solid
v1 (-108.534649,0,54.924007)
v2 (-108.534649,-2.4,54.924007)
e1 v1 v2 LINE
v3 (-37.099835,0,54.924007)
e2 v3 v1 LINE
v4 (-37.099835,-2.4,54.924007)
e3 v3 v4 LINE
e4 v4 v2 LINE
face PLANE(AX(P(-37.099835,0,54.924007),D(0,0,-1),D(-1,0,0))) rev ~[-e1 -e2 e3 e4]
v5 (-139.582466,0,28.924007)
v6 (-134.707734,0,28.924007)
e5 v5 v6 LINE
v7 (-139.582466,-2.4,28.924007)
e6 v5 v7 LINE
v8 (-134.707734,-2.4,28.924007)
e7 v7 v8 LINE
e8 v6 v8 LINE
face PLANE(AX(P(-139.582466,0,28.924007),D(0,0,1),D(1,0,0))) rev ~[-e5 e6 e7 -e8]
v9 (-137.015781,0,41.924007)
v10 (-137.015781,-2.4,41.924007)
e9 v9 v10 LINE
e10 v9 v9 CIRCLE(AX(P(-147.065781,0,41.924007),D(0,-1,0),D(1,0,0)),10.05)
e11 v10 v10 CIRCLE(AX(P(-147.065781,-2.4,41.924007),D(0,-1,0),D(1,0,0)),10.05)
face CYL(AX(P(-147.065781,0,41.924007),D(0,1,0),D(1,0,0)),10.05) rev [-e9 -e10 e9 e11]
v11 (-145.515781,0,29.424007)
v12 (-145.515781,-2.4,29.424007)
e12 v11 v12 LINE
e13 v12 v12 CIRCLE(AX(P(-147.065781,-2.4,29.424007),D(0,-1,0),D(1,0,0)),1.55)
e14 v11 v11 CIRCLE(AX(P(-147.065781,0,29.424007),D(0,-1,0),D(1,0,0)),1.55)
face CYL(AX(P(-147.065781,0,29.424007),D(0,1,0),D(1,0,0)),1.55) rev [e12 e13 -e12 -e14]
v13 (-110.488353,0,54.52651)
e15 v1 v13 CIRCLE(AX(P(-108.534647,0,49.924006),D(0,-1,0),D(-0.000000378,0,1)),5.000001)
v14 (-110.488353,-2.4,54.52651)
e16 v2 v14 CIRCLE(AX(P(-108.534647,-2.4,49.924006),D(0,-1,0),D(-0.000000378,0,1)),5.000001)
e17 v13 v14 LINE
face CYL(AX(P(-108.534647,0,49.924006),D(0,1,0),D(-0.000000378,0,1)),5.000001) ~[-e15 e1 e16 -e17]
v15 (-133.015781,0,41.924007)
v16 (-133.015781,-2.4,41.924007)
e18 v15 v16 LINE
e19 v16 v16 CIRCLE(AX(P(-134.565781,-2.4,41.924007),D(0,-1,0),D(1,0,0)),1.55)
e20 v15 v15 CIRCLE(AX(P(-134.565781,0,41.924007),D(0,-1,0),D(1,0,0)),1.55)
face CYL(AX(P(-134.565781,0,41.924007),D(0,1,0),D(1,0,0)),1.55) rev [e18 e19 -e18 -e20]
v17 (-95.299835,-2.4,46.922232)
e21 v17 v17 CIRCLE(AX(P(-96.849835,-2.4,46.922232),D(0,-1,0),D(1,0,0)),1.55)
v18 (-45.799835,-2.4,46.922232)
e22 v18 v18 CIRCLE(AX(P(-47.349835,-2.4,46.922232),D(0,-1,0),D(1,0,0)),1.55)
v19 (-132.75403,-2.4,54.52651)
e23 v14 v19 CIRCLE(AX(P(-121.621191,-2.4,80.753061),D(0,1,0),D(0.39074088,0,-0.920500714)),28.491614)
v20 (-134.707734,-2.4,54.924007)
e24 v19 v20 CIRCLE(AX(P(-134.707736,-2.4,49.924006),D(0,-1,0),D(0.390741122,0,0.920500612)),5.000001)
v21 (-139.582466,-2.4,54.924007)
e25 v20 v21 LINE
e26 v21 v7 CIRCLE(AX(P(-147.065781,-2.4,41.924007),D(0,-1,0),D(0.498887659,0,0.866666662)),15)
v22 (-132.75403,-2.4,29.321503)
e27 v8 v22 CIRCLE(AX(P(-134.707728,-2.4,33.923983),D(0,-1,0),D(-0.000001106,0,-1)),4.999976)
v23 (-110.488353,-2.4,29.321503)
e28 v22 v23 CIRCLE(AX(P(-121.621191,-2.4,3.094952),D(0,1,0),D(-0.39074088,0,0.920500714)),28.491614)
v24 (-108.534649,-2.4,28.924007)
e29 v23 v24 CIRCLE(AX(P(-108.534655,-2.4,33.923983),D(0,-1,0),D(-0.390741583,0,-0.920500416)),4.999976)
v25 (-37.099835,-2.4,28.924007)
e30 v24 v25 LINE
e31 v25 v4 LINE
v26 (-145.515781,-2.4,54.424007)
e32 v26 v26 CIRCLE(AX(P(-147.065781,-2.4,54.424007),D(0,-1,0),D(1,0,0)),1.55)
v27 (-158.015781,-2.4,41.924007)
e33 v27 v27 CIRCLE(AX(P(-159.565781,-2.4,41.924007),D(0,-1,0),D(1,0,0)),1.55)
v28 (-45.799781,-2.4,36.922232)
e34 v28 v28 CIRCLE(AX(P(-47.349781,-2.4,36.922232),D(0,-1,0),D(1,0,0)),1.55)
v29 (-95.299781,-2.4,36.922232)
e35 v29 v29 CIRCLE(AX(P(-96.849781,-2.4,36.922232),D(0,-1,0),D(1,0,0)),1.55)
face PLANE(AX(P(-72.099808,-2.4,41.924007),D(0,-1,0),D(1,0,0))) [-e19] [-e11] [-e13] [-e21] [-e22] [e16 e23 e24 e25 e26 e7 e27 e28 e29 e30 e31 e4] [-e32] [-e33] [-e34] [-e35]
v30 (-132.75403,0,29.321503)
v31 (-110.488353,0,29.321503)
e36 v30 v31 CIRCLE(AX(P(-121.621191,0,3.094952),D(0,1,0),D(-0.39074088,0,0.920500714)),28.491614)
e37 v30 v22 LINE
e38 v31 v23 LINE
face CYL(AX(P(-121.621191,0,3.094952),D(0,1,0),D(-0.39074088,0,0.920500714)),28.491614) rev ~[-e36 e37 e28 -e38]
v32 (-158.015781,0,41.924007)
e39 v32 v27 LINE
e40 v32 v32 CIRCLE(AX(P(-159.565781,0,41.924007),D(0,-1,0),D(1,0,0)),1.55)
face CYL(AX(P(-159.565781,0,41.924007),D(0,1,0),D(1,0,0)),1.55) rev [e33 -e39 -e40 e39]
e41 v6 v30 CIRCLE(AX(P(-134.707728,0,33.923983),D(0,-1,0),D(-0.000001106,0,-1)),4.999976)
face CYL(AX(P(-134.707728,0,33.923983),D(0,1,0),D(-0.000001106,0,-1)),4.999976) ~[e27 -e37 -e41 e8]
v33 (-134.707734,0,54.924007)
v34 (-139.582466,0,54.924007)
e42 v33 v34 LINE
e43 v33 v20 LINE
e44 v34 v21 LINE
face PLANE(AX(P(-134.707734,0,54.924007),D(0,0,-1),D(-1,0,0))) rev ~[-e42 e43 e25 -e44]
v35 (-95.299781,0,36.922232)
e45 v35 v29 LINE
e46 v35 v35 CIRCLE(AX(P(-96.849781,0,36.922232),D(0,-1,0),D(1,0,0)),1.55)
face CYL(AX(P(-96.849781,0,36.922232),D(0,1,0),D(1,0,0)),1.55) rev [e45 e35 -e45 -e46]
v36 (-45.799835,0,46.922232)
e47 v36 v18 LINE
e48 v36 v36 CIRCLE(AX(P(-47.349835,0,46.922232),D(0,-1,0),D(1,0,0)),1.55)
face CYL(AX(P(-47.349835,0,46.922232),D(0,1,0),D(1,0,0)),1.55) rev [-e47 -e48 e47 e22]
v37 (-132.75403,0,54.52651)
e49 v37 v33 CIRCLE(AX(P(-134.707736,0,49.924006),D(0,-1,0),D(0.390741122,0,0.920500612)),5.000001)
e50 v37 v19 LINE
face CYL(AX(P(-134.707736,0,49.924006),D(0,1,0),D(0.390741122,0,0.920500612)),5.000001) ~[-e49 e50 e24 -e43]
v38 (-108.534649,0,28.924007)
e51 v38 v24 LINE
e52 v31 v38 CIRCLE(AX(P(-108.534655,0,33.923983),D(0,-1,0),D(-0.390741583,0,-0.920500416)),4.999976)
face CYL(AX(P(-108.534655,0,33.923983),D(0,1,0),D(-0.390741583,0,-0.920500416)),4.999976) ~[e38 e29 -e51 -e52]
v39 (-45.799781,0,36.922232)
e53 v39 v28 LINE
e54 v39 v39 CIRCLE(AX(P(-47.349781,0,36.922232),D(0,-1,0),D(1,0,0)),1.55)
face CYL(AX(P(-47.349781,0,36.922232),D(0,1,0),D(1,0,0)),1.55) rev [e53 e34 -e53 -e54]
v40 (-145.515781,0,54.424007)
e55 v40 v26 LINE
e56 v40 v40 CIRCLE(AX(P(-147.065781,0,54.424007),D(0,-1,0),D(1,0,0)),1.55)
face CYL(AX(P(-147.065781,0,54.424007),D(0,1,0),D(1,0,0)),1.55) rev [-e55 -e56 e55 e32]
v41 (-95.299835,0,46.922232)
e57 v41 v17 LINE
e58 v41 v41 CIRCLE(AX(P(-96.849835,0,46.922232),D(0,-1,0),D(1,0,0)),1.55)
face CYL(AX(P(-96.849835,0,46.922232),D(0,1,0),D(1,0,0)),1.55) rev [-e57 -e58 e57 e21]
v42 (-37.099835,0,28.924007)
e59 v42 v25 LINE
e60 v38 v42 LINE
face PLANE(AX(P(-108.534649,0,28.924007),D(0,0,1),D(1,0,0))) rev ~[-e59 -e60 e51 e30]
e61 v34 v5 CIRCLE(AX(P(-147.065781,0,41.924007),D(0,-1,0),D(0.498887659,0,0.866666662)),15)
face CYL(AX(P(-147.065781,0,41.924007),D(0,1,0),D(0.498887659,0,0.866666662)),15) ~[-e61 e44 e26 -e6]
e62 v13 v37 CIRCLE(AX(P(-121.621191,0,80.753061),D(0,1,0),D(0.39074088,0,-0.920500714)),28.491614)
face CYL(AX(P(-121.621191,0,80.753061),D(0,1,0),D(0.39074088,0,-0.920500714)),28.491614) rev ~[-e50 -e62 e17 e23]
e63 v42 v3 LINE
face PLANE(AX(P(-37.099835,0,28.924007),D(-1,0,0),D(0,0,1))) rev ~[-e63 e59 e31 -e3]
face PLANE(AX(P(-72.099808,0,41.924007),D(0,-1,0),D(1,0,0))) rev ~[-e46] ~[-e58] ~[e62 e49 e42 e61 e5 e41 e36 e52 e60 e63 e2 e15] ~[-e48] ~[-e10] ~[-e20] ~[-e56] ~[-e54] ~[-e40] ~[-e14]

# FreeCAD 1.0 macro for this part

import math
import FreeCAD as App
import Part
import Sketcher

doc = App.newDocument("Part")
body = doc.addObject("PartDesign::Body", "Body")

# Sketch on XZ plane
sketch1 = body.newObject("Sketcher::SketchObject", "Sketch")
sketch1.AttachmentSupport = (doc.getObject("XZ_Plane"), [""])
sketch1.MapMode = "FlatFace"
sketch1.addGeometry([
    Part.LineSegment(App.Vector(-37.099835, 28.924007, 0), App.Vector(-37.099835, 54.924007, 0)),  # 0
    Part.LineSegment(App.Vector(-37.099835, 54.924007, 0), App.Vector(-108.534649, 54.924007, 0)),  # 1
    Part.ArcOfCircle(Part.Circle(App.Vector(-108.534647, 49.924006, 0), App.Vector(0, 0, 1), 5.000001), math.radians(90.000022), math.radians(113.000622)),  # 2
    Part.ArcOfCircle(Part.Circle(App.Vector(-121.621191, 80.753061, 0), App.Vector(0, 0, 1), 28.491614), math.radians(-113.000607), math.radians(-66.999393)),  # 3
    Part.ArcOfCircle(Part.Circle(App.Vector(-134.707736, 49.924006, 0), App.Vector(0, 0, 1), 5.000001), math.radians(66.999378), math.radians(89.999978)),  # 4
    Part.LineSegment(App.Vector(-134.707734, 54.924007, 0), App.Vector(-139.582466, 54.924007, 0)),  # 5
    Part.ArcOfCircle(Part.Circle(App.Vector(-147.065781, 41.924007, 0), App.Vector(0, 0, 1), 15), math.radians(60.073565), math.radians(299.926435)),  # 6
    Part.LineSegment(App.Vector(-139.582466, 28.924007, 0), App.Vector(-134.707734, 28.924007, 0)),  # 7
    Part.ArcOfCircle(Part.Circle(App.Vector(-134.707728, 33.923983, 0), App.Vector(0, 0, 1), 4.999976), math.radians(-90.000063), math.radians(-66.999349)),  # 8
    Part.ArcOfCircle(Part.Circle(App.Vector(-121.621191, 3.094952, 0), App.Vector(0, 0, 1), 28.491614), math.radians(66.999393), math.radians(113.000607)),  # 9
    Part.ArcOfCircle(Part.Circle(App.Vector(-108.534655, 33.923983, 0), App.Vector(0, 0, 1), 4.999976), math.radians(-113.000651), math.radians(-89.999937)),  # 10
    Part.LineSegment(App.Vector(-108.534649, 28.924007, 0), App.Vector(-37.099835, 28.924007, 0)),  # 11
    Part.Circle(App.Vector(-147.065781, 29.424007, 0), App.Vector(0, 0, 1), 1.55),  # 12
    Part.Circle(App.Vector(-96.849781, 36.922232, 0), App.Vector(0, 0, 1), 1.55),  # 13
    Part.Circle(App.Vector(-47.349781, 36.922232, 0), App.Vector(0, 0, 1), 1.55),  # 14
    Part.Circle(App.Vector(-159.565781, 41.924007, 0), App.Vector(0, 0, 1), 1.55),  # 15
    Part.Circle(App.Vector(-147.065781, 41.924007, 0), App.Vector(0, 0, 1), 10.05),  # 16
    Part.Circle(App.Vector(-134.565781, 41.924007, 0), App.Vector(0, 0, 1), 1.55),  # 17
    Part.Circle(App.Vector(-147.065781, 54.424007, 0), App.Vector(0, 0, 1), 1.55),  # 18
    Part.Circle(App.Vector(-96.849835, 46.922232, 0), App.Vector(0, 0, 1), 1.55),  # 19
    Part.Circle(App.Vector(-47.349835, 46.922232, 0), App.Vector(0, 0, 1), 1.55),  # 20
], False)
sketch1.addConstraint([
    Sketcher.Constraint("Coincident", 0, 2, 1, 1),
    Sketcher.Constraint("Coincident", 1, 2, 2, 1),
    Sketcher.Constraint("Coincident", 2, 2, 3, 2),
    Sketcher.Constraint("Coincident", 3, 1, 4, 1),
    Sketcher.Constraint("Coincident", 4, 2, 5, 1),
    Sketcher.Constraint("Coincident", 5, 2, 6, 1),
    Sketcher.Constraint("Coincident", 6, 2, 7, 1),
    Sketcher.Constraint("Coincident", 7, 2, 8, 1),
    Sketcher.Constraint("Coincident", 8, 2, 9, 2),
    Sketcher.Constraint("Coincident", 9, 1, 10, 1),
    Sketcher.Constraint("Coincident", 10, 2, 11, 1),
    Sketcher.Constraint("Coincident", 11, 2, 0, 1),
    Sketcher.Constraint("Vertical", 0),
    Sketcher.Constraint("Horizontal", 1),
    Sketcher.Constraint("Horizontal", 5),
    Sketcher.Constraint("Horizontal", 7),
    Sketcher.Constraint("Horizontal", 11),
    Sketcher.Constraint("Coincident", 16, 3, 6, 3),
    Sketcher.Constraint("Radius", 2, 5.000001),
    Sketcher.Constraint("Radius", 4, 5.000001),
    Sketcher.Constraint("Radius", 6, 15.0),
    Sketcher.Constraint("Diameter", 12, 3.1),
    Sketcher.Constraint("Diameter", 13, 3.1),
    Sketcher.Constraint("Diameter", 14, 3.1),
    Sketcher.Constraint("Diameter", 15, 3.1),
    Sketcher.Constraint("Diameter", 16, 20.1),
    Sketcher.Constraint("Diameter", 17, 3.1),
    Sketcher.Constraint("Diameter", 18, 3.1),
    Sketcher.Constraint("Diameter", 19, 3.1),
    Sketcher.Constraint("Diameter", 20, 3.1),
    Sketcher.Constraint("DistanceY", 0, 1, 0, 2, 26.0),
    Sketcher.Constraint("DistanceY", 6, 3, 4, 3, 7.999999),
    Sketcher.Constraint("DistanceY", 6, 3, 2, 3, 7.999999),
    Sketcher.Constraint("DistanceY", 15, 3, 4, 3, 7.999999),
    Sketcher.Constraint("DistanceY", 17, 3, 4, 3, 7.999999),
    Sketcher.Constraint("DistanceY", 13, 3, 19, 3, 10.0),
    Sketcher.Constraint("DistanceY", 14, 3, 20, 3, 10.0),
    Sketcher.Constraint("DistanceY", 13, 3, 20, 3, 10.0),
    Sketcher.Constraint("DistanceY", 6, 2, 17, 3, 13.0),
    Sketcher.Constraint("DistanceY", 12, 3, 6, 3, 12.5),
    Sketcher.Constraint("DistanceX", 13, 3, 14, 3, 49.5),
    Sketcher.Constraint("DistanceX", 15, 3, 6, 3, 12.5),
    Sketcher.Constraint("DistanceX", 15, 3, 12, 3, 12.5),
    Sketcher.Constraint("DistanceX", 6, 3, 17, 3, 12.5),
    Sketcher.Constraint("DistanceY", 6, 3, 18, 3, 12.5),
    Sketcher.Constraint("DistanceX", 15, 3, 18, 3, 12.5),
    Sketcher.Constraint("DistanceX", 19, 3, 20, 3, 49.5),
    Sketcher.Constraint("DistanceX", 20, 3, 0, 2, 10.25),
    Sketcher.Constraint("Radius", 3, 28.491614),
    Sketcher.Constraint("Radius", 8, 4.999976),
    Sketcher.Constraint("Radius", 9, 28.491614),
    Sketcher.Constraint("Radius", 10, 4.999976),
    Sketcher.Constraint("DistanceX", 4, 3, 19, 3, 37.857901),
    Sketcher.Constraint("DistanceX", 2, 2, 10, 3, 1.953698),
    Sketcher.Constraint("DistanceX", 8, 3, 8, 2, 1.953698),
    Sketcher.Constraint("DistanceX", 9, 1, 10, 3, 1.953698),
    Sketcher.Constraint("DistanceX", 1, 2, 1, 1, 71.434814),
    Sketcher.Constraint("DistanceX", 5, 2, 5, 1, 4.874732),
    Sketcher.Constraint("DistanceX", 7, 1, 7, 2, 4.874732),
    Sketcher.Constraint("DistanceX", 11, 1, 11, 2, 71.434814),
    Sketcher.Constraint("DistanceX", 3, 3, -1, 1, 121.621191),
    Sketcher.Constraint("DistanceY", -1, 1, 3, 3, 80.753061),
    Sketcher.Constraint("DistanceX", 6, 3, -1, 1, 147.065781),
    Sketcher.Constraint("DistanceX", 8, 3, -1, 1, 134.707728),
    Sketcher.Constraint("DistanceX", 9, 3, -1, 1, 121.621191),
    Sketcher.Constraint("DistanceY", -1, 1, 9, 3, 3.094952),
    Sketcher.Constraint("DistanceX", 13, 3, -1, 1, 96.849781),
    Sketcher.Constraint("DistanceX", 3, 1, -1, 1, 132.75403),
    Sketcher.Constraint("DistanceY", 10, 3, 13, 3, 2.998249),
])
pad1 = body.newObject("PartDesign::Pad", "Pad")
pad1.Profile = sketch1
pad1.Length = 2.4

doc.recompute()
